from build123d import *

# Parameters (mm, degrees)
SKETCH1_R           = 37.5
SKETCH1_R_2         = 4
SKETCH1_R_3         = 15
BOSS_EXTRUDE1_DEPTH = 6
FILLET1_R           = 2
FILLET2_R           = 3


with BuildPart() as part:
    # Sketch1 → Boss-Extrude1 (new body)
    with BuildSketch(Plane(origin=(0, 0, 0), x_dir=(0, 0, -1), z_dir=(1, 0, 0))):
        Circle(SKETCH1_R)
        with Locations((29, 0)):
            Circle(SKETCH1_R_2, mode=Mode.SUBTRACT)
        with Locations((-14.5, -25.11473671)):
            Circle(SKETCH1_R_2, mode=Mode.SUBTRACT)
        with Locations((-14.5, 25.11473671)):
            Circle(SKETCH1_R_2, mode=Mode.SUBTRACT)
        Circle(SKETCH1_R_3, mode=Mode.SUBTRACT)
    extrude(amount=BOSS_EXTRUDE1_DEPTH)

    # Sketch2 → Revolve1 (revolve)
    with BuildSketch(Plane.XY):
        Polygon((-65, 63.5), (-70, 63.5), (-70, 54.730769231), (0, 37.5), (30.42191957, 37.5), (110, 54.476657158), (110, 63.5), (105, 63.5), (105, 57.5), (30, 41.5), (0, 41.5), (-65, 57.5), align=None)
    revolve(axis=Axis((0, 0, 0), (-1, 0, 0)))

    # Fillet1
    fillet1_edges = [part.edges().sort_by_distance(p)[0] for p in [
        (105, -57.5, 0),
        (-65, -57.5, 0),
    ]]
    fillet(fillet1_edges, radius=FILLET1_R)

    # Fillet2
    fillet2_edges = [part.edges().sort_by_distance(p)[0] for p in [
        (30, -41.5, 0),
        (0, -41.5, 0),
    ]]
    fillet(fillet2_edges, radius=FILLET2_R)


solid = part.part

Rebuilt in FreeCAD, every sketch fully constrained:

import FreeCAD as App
import Part
import Sketcher
from FreeCAD import Vector
Q = App.Units.Quantity


def edges_at(feature, points):
    """Names of the edges that pass closest to the given points."""
    edges = feature.Shape.Edges
    near = lambda p: min(range(len(edges)), key=lambda i: edges[i].distToShape(Part.Vertex(*p))[0])
    return sorted({f"Edge{near(p) + 1}" for p in points})


def add_polygon(sketch, points):
    """Adds a closed chain of lines whose ends are joined by coincident constraints."""
    first, n = sketch.GeometryCount, len(points)
    for a, b in zip(points, points[1:] + points[:1]):
        sketch.addGeometry(Part.LineSegment(App.Vector(*a, 0), App.Vector(*b, 0)), False)
    for i in range(n):
        sketch.addConstraint(Sketcher.Constraint("Coincident", first + i, 2, first + (i + 1) % n, 1))

doc = App.newDocument("Part")
body = doc.addObject("PartDesign::Body", "Body")

sketch1 = body.newObject("Sketcher::SketchObject", "Sketch")
sketch1.AttachmentSupport = (doc.getObject("YZ_Plane"), [""])
sketch1.MapMode = "FlatFace"
sketch1.addGeometry([
    Part.Circle(Vector(0, 0, 0), Vector(0, 0, 1), 37.5),
    Part.Circle(Vector(-25.1, 14.5, 0), Vector(0, 0, 1), 4),
    Part.Circle(Vector(0, 0, 0), Vector(0, 0, 1), 15),
    Part.Circle(Vector(25.1, 14.5, 0), Vector(0, 0, 1), 4),
    Part.Circle(Vector(0, -29, 0), Vector(0, 0, 1), 4),
], False)
sketch1.addConstraint([
    Sketcher.Constraint("Coincident", 0, 3, -1, 1),
    Sketcher.Constraint("Coincident", 2, 3, -1, 1),
    Sketcher.Constraint("Equal", 1, 3),
    Sketcher.Constraint("Equal", 3, 4),
    Sketcher.Constraint("Symmetric", 1, 3, 3, 3, -2),
    Sketcher.Constraint("PointOnObject", 4, 3, -2),
    Sketcher.Constraint("Diameter", 0, Q("75 mm")),
    Sketcher.Constraint("Diameter", 1, Q("8 mm")),
    Sketcher.Constraint("Diameter", 2, Q("30 mm")),
    Sketcher.Constraint("DistanceY", 4, 3, -1, 1, Q("29 mm")),
    Sketcher.Constraint("DistanceY", -1, 1, 1, 3, Q("14.5 mm")),
    Sketcher.Constraint("DistanceX", 1, 3, -1, 1, Q("25.114737 mm")),
])
pad1 = body.newObject("PartDesign::Pad", "Pad")
pad1.Profile = sketch1
pad1.Length = 6

sketch2 = body.newObject("Sketcher::SketchObject", "Sketch001")
sketch2.AttachmentSupport = (doc.getObject("XY_Plane"), [""])
sketch2.MapMode = "FlatFace"
add_polygon(sketch2, [(-65, 64), (-70, 64), (-70, 55), (0, 38), (30, 38), (110, 54), (110, 64), (105, 64), (105, 58), (30, 42), (0, 42), (-65, 58)])
sketch2.addConstraint([
    Sketcher.Constraint("Horizontal", 0),
    Sketcher.Constraint("Vertical", 1),
    Sketcher.Constraint("Horizontal", 3),
    Sketcher.Constraint("Vertical", 5),
    Sketcher.Constraint("Horizontal", 6),
    Sketcher.Constraint("Vertical", 7),
    Sketcher.Constraint("Horizontal", 9),
    Sketcher.Constraint("Vertical", 11),
    Sketcher.Constraint("PointOnObject", 2, 2, -2),
    Sketcher.Constraint("PointOnObject", 9, 2, -2),
    Sketcher.Constraint("Parallel", 4, 8),
    Sketcher.Constraint("Parallel", 2, 10),
    Sketcher.Constraint("Horizontal", 0, 2, 5, 2),
    Sketcher.Constraint("Horizontal", 7, 2, 10, 2),
    Sketcher.Constraint("Equal", 0, 6),
    Sketcher.Constraint("DistanceX", 0, 2, 0, 1, Q("5 mm")),
    Sketcher.Constraint("DistanceX", 9, 2, 9, 1, Q("30 mm")),
    Sketcher.Constraint("DistanceY", 7, 2, 7, 1, Q("6 mm")),
    Sketcher.Constraint("DistanceX", 0, 2, -1, 1, Q("70 mm")),
    Sketcher.Constraint("DistanceX", -1, 1, 4, 2, Q("110 mm")),
    Sketcher.Constraint("DistanceY", 2, 2, 0, 2, Q("26 mm")),
    Sketcher.Constraint("DistanceY", 3, 2, 8, 2, Q("4 mm")),
    Sketcher.Constraint("DistanceY", -1, 1, 0, 2, Q("63.5 mm")),
    Sketcher.Constraint("DistanceX", 3, 1, 3, 2, Q("30.42192 mm")),
])
revolution = body.newObject("PartDesign::Revolution", "Revolution")
revolution.Profile = sketch2
revolution.ReferenceAxis = (sketch2, ["H_Axis"])
revolution.Angle = 360
doc.recompute()

fillet = body.newObject("PartDesign::Fillet", "Fillet")
fillet.Base = (revolution, edges_at(revolution, [(105, -57.5, 0), (-65, -57.5, 0)]))
fillet.Radius = 2
doc.recompute()

fillet2 = body.newObject("PartDesign::Fillet", "Fillet001")
fillet2.Base = (fillet, edges_at(fillet, [(30, -41.5, 0), (0, -41.5, 0)]))
fillet2.Radius = 3

doc.recompute()
